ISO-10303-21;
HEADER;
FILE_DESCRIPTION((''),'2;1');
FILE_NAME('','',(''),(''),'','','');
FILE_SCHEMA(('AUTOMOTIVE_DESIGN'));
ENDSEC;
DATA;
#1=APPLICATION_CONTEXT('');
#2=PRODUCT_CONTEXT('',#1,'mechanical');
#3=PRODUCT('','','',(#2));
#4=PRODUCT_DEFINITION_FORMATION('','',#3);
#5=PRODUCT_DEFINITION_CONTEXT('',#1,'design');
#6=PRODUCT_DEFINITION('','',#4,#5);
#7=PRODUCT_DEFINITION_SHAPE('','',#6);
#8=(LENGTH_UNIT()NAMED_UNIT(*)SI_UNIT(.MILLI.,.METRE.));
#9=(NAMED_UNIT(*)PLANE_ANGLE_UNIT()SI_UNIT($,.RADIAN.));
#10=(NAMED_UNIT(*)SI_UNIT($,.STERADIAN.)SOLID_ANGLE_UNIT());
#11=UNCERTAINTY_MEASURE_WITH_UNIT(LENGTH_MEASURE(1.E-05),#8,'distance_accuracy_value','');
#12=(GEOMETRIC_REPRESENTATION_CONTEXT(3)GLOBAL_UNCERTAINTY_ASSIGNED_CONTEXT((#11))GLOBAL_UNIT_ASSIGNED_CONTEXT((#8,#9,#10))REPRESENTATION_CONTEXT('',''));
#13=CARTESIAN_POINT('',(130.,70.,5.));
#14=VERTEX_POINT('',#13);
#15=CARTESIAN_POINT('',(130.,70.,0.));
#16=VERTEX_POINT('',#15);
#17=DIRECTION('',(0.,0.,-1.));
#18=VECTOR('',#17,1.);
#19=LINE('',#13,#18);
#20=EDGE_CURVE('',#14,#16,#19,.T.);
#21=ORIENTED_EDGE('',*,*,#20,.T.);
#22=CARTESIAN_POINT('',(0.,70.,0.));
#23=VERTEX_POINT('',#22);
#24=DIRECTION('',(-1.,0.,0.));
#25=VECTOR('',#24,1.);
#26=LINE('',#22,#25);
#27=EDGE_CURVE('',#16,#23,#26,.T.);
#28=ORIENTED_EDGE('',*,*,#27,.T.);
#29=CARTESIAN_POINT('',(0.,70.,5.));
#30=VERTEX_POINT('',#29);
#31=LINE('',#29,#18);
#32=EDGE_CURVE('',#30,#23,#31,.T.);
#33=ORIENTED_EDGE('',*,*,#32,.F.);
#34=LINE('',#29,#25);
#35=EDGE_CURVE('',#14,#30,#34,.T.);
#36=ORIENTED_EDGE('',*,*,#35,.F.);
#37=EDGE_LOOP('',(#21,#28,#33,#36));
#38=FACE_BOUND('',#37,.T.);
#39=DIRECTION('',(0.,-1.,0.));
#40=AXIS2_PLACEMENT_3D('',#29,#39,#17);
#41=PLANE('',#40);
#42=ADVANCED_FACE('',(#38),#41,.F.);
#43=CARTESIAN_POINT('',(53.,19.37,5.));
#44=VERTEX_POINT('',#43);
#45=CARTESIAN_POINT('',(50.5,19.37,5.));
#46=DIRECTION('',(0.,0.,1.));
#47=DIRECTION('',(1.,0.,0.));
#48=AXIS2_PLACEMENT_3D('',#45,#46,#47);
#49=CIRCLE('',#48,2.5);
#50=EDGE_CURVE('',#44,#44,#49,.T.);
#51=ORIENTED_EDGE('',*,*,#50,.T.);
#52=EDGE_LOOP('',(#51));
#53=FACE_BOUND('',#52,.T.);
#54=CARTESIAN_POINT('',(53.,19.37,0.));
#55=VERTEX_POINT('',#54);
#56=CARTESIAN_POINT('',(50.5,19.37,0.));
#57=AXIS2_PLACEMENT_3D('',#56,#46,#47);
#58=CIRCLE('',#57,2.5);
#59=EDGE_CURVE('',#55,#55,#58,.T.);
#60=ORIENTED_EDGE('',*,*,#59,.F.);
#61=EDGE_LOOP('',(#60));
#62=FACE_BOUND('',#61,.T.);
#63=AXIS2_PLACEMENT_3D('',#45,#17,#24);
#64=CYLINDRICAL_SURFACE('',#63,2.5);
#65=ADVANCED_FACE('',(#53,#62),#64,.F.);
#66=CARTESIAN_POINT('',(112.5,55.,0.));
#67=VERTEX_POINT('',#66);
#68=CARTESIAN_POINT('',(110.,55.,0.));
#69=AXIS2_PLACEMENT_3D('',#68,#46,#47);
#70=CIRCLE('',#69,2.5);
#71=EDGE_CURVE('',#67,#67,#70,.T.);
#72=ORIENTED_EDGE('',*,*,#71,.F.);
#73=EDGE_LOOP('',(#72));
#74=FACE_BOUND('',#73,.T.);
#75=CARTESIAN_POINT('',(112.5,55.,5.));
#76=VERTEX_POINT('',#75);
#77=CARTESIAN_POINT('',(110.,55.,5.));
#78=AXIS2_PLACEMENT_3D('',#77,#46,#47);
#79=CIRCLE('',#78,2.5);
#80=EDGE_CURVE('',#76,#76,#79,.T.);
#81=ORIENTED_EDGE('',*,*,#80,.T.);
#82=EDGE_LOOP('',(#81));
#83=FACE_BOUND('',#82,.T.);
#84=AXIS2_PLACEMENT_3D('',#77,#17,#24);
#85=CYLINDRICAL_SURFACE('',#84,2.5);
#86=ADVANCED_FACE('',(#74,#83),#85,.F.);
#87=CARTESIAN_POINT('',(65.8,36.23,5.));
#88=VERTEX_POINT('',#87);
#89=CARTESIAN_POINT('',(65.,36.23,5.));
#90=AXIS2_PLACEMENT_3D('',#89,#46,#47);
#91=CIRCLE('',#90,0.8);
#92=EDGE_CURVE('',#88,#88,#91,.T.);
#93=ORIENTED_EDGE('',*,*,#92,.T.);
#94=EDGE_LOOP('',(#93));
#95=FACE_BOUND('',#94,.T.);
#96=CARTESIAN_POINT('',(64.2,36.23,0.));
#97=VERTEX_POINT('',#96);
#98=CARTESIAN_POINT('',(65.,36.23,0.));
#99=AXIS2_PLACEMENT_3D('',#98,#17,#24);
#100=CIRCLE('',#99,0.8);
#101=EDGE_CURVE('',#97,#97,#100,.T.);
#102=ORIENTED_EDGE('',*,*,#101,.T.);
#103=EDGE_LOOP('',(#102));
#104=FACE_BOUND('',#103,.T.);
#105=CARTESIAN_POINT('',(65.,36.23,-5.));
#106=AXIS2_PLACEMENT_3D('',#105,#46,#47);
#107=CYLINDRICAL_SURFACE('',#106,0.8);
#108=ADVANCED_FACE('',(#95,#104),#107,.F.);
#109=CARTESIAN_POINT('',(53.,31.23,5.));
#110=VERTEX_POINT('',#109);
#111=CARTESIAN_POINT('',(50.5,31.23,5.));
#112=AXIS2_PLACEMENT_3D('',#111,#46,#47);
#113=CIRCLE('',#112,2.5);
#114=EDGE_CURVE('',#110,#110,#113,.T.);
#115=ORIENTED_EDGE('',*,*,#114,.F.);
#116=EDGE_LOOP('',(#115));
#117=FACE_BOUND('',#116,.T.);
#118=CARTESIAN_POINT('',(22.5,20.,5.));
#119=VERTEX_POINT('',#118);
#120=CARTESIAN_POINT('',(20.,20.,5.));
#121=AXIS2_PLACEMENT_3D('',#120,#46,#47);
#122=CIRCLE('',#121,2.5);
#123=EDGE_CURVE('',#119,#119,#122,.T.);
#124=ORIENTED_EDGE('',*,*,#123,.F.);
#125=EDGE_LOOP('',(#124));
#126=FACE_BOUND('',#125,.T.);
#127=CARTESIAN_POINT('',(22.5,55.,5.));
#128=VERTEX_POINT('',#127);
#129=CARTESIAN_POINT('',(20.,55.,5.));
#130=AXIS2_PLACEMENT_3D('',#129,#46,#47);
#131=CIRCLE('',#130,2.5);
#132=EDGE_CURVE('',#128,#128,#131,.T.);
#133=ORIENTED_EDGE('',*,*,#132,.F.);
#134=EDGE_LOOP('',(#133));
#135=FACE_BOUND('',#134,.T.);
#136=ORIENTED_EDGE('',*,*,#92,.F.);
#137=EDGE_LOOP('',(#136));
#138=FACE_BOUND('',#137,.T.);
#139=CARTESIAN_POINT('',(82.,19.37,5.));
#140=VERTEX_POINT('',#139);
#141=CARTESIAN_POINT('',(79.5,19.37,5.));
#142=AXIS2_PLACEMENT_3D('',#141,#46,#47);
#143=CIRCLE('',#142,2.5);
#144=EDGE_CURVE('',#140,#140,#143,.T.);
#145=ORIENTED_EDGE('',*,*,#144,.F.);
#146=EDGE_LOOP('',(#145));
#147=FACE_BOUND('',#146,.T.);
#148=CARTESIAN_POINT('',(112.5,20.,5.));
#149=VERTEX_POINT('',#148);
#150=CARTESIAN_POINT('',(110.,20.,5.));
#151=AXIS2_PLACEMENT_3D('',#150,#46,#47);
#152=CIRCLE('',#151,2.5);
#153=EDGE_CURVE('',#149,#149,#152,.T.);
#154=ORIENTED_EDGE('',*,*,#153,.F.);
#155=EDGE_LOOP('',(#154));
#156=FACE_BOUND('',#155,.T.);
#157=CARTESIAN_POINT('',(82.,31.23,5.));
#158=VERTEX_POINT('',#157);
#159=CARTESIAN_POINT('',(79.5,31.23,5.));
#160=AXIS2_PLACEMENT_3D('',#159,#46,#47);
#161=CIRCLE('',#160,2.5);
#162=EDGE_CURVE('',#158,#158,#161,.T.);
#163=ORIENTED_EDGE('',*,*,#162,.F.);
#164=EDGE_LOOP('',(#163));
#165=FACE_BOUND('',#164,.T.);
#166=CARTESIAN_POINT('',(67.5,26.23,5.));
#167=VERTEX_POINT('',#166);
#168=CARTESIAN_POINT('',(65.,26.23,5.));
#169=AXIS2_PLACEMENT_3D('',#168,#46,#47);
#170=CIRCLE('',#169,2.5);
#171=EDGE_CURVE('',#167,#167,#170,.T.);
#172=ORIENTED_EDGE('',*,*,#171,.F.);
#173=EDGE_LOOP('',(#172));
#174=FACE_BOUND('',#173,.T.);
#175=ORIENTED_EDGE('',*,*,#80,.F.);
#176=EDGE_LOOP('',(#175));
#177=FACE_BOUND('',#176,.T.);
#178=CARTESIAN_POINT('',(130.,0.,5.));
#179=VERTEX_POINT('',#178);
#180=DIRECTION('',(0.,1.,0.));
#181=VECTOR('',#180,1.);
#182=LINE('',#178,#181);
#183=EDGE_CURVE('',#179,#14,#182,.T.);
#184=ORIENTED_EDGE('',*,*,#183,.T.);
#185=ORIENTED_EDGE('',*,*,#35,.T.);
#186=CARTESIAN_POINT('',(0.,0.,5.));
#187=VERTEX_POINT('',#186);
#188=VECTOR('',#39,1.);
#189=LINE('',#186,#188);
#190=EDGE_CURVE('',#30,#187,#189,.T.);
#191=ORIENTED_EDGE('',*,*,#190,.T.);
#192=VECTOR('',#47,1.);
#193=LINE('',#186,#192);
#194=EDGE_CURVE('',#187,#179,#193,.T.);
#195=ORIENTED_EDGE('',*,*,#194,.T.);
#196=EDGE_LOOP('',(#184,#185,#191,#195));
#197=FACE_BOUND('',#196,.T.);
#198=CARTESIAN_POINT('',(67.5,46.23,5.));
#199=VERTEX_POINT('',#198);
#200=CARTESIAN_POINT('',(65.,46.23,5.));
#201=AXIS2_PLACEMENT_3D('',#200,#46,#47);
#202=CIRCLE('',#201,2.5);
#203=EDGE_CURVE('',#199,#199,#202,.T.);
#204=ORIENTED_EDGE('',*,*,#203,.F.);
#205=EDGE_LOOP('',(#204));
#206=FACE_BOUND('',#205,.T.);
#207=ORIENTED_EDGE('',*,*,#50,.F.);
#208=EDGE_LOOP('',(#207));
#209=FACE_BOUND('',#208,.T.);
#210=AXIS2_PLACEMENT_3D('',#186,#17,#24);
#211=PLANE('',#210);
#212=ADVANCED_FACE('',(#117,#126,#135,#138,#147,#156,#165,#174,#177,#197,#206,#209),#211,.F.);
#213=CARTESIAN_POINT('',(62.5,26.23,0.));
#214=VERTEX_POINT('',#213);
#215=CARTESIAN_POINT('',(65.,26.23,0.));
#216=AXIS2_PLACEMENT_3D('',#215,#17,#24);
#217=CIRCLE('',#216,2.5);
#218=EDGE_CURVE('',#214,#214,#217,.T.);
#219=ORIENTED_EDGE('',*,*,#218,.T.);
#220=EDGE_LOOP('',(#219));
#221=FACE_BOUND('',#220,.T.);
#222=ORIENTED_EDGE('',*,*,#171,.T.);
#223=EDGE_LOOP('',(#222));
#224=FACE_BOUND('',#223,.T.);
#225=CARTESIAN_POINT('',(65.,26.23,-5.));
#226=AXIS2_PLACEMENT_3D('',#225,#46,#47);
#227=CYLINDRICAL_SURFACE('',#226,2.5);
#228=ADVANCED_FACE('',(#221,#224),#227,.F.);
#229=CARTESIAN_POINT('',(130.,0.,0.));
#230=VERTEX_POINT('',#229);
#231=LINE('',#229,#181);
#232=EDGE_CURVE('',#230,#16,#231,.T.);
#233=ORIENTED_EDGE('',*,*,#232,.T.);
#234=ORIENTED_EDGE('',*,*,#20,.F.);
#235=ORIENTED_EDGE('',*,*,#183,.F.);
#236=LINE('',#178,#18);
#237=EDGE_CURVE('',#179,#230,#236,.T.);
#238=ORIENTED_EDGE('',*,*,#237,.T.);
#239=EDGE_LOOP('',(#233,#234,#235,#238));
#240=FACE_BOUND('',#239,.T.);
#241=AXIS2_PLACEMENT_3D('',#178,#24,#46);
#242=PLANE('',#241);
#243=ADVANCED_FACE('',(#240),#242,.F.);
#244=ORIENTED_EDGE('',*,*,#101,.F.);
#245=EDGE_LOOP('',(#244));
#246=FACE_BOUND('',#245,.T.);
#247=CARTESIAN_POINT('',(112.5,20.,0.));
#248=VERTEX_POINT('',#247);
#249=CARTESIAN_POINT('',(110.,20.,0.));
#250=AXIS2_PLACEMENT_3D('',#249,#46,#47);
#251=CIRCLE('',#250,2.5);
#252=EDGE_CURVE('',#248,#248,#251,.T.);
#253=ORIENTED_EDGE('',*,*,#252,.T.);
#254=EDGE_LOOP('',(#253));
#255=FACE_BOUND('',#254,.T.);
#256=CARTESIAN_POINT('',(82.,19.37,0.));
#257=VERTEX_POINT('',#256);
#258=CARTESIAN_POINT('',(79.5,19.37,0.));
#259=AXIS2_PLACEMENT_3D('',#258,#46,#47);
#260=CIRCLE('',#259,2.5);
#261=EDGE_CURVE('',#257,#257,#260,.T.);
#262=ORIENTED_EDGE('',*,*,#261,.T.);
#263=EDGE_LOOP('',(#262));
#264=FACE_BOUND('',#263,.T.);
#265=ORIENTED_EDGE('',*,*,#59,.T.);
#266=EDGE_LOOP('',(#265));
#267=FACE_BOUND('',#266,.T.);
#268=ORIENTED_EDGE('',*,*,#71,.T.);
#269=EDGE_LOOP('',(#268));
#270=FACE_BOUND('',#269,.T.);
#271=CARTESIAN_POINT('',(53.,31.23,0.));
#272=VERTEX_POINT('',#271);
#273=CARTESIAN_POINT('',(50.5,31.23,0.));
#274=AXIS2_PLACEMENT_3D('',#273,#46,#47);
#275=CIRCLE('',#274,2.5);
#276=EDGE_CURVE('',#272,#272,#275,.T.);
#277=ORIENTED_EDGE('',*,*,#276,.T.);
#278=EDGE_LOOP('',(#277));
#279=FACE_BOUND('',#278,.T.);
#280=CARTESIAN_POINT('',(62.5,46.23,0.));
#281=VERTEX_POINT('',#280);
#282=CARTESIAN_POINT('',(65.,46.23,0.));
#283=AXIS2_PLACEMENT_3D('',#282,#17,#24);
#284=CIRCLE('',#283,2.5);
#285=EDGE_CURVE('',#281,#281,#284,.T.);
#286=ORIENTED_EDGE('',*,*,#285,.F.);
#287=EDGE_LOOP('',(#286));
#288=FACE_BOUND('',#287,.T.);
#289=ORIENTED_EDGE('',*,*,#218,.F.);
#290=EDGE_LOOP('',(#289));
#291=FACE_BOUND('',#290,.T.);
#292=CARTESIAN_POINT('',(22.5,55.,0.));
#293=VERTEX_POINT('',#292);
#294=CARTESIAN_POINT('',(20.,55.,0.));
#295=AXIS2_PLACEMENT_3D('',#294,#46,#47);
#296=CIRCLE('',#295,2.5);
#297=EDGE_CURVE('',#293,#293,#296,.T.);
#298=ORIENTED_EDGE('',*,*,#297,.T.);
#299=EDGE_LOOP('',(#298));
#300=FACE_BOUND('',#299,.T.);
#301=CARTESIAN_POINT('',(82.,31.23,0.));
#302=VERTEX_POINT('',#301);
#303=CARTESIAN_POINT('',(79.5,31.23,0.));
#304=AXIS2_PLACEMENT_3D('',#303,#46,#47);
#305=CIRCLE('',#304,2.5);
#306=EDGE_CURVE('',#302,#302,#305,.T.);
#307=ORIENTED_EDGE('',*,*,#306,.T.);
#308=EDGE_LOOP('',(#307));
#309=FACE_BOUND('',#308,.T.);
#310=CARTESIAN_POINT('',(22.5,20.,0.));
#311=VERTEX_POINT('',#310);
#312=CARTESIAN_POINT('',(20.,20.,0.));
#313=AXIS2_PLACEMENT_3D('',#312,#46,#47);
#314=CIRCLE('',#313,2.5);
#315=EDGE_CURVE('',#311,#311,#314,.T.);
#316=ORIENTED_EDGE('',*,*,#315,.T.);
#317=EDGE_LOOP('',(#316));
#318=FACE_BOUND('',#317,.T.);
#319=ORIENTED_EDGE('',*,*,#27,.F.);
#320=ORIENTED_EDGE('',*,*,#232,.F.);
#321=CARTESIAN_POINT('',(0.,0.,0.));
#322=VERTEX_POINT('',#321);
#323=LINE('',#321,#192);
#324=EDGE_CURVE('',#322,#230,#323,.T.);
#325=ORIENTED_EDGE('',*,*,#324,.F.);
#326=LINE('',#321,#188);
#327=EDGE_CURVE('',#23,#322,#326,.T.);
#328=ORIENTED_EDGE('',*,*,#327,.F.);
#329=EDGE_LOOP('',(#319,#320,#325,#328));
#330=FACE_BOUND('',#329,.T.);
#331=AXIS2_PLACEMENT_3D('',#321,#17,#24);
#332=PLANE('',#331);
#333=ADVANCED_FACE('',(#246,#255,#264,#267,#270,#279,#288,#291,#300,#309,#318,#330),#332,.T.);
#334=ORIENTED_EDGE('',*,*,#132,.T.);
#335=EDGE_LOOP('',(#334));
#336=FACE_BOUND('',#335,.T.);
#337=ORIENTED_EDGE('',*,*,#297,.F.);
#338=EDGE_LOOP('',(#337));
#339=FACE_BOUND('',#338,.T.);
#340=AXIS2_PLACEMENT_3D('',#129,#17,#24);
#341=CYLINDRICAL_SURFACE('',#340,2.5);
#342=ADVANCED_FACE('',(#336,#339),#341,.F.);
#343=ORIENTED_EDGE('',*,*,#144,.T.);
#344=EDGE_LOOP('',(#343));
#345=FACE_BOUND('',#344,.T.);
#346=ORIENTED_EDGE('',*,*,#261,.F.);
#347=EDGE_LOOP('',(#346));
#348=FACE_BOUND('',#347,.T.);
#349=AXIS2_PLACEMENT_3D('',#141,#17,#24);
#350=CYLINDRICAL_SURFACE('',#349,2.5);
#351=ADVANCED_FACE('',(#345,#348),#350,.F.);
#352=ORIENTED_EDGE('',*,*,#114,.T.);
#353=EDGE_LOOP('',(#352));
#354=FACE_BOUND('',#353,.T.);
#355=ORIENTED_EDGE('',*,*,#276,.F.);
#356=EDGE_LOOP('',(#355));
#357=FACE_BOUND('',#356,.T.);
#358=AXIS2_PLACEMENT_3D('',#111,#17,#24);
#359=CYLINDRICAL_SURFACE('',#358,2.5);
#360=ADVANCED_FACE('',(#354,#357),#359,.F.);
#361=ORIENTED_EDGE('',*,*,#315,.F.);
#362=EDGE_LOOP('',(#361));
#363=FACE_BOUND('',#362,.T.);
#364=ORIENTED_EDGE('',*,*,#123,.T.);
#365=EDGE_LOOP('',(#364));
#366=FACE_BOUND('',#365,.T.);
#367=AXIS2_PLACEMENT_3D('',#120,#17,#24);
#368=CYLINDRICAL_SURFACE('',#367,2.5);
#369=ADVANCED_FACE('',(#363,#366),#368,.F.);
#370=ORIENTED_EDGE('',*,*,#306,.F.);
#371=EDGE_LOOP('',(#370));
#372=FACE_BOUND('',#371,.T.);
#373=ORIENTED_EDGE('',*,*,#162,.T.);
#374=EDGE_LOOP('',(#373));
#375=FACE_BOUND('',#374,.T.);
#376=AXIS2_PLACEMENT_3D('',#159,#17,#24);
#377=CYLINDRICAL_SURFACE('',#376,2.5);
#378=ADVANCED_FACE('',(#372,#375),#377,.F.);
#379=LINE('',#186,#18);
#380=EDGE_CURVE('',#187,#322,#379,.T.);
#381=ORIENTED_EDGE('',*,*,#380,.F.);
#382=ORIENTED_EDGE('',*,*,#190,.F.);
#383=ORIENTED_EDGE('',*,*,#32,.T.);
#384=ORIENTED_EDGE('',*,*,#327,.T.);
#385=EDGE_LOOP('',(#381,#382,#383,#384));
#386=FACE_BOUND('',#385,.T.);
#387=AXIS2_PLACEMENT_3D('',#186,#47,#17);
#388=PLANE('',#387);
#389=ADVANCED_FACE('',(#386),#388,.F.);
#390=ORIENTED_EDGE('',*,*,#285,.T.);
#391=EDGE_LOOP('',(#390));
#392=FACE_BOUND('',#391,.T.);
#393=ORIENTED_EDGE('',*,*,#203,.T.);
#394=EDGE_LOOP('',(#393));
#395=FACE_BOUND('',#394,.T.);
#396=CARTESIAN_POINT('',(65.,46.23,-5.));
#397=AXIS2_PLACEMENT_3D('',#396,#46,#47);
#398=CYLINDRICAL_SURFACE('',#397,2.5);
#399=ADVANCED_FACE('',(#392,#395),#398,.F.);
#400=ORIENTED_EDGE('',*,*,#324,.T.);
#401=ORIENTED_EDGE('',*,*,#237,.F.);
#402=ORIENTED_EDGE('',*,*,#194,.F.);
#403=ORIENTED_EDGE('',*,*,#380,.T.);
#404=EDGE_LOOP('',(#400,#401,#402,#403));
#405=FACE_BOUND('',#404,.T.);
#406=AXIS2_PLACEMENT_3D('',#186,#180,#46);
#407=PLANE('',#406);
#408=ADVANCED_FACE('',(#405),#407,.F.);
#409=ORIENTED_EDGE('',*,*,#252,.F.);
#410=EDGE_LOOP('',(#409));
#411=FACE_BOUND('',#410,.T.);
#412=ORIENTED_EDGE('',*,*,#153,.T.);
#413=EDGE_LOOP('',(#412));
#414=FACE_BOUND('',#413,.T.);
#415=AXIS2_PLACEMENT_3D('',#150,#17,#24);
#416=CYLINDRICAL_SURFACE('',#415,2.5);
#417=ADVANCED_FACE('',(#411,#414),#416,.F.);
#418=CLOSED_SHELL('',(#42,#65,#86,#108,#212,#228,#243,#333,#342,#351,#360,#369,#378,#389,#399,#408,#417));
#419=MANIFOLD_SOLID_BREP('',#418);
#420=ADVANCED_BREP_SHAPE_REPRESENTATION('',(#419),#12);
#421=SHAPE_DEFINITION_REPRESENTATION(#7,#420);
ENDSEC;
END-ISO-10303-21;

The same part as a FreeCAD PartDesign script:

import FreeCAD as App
import Part
import Sketcher


def add_polygon(sketch, points):
    """Adds a closed chain of lines whose ends are joined by coincident constraints."""
    first, n = sketch.GeometryCount, len(points)
    for a, b in zip(points, points[1:] + points[:1]):
        sketch.addGeometry(Part.LineSegment(App.Vector(*a, 0), App.Vector(*b, 0)), False)
    for i in range(n):
        sketch.addConstraint(Sketcher.Constraint("Coincident", first + i, 2, first + (i + 1) % n, 1))

doc = App.newDocument("Part")
body = doc.addObject("PartDesign::Body", "Body")

# Sketch on XY plane
sketch1 = body.newObject("Sketcher::SketchObject", "Sketch")
sketch1.AttachmentSupport = (doc.getObject("XY_Plane"), [""])
sketch1.MapMode = "FlatFace"
add_polygon(sketch1, [(0, 70), (0, 0), (130, 0), (130, 70)])  # lines 0-3
sketch1.addGeometry(Part.Circle(App.Vector(20, 20, 0), App.Vector(0, 0, 1), 2.5), False)  # 4
sketch1.addGeometry(Part.Circle(App.Vector(50.5, 19.4, 0), App.Vector(0, 0, 1), 2.5), False)  # 5
sketch1.addGeometry(Part.Circle(App.Vector(50.5, 31.2, 0), App.Vector(0, 0, 1), 2.5), False)  # 6
sketch1.addGeometry(Part.Circle(App.Vector(79.5, 19.4, 0), App.Vector(0, 0, 1), 2.5), False)  # 7
sketch1.addGeometry(Part.Circle(App.Vector(110, 20, 0), App.Vector(0, 0, 1), 2.5), False)  # 8
sketch1.addGeometry(Part.Circle(App.Vector(79.5, 31.2, 0), App.Vector(0, 0, 1), 2.5), False)  # 9
sketch1.addGeometry(Part.Circle(App.Vector(20, 55, 0), App.Vector(0, 0, 1), 2.5), False)  # 10
sketch1.addGeometry(Part.Circle(App.Vector(110, 55, 0), App.Vector(0, 0, 1), 2.5), False)  # 11
sketch1.addConstraint([
    Sketcher.Constraint("Vertical", 0),
    Sketcher.Constraint("Horizontal", 1),
    Sketcher.Constraint("Vertical", 2),
    Sketcher.Constraint("Horizontal", 3),
    Sketcher.Constraint("Coincident", 0, 2, -1, 1),
    Sketcher.Constraint("Equal", 4, 5),
    Sketcher.Constraint("Equal", 5, 6),
    Sketcher.Constraint("Equal", 6, 7),
    Sketcher.Constraint("Equal", 7, 8),
    Sketcher.Constraint("Equal", 8, 9),
    Sketcher.Constraint("Equal", 9, 10),
    Sketcher.Constraint("Equal", 10, 11),
    Sketcher.Constraint("Horizontal", 5, 3, 7, 3),
    Sketcher.Constraint("Horizontal", 4, 3, 8, 3),
    Sketcher.Constraint("Horizontal", 6, 3, 9, 3),
    Sketcher.Constraint("Horizontal", 10, 3, 11, 3),
    Sketcher.Constraint("Vertical", 5, 3, 6, 3),
    Sketcher.Constraint("Vertical", 7, 3, 9, 3),
    Sketcher.Constraint("Vertical", 4, 3, 10, 3),
    Sketcher.Constraint("Vertical", 8, 3, 11, 3),
    Sketcher.Constraint("Diameter", 4, 5.0),
    Sketcher.Constraint("DistanceX", 1, 1, 1, 2, 130.0),
    Sketcher.Constraint("DistanceY", 0, 2, 0, 1, 70.0),
    Sketcher.Constraint("DistanceX", -1, 1, 4, 3, 20.0),
    Sketcher.Constraint("DistanceY", -1, 1, 4, 3, 20.0),
    Sketcher.Constraint("DistanceX", -1, 1, 8, 3, 110.0),
    Sketcher.Constraint("DistanceY", -1, 1, 10, 3, 55.0),
    Sketcher.Constraint("DistanceX", 5, 3, 7, 3, 29.0),
    Sketcher.Constraint("DistanceX", -1, 1, 5, 3, 50.5),
    Sketcher.Constraint("DistanceY", -1, 1, 5, 3, 19.37),
    Sketcher.Constraint("DistanceY", -1, 1, 6, 3, 31.23),
])
pad1 = body.newObject("PartDesign::Pad", "Pad")
pad1.Profile = sketch1
pad1.Length = 5

# Sketch on XY plane
sketch2 = body.newObject("Sketcher::SketchObject", "Sketch001")
sketch2.AttachmentSupport = (doc.getObject("XY_Plane"), [""])
sketch2.MapMode = "FlatFace"
sketch2.AttachmentOffset = App.Placement(App.Vector(0, 0, 5), App.Rotation())
sketch2.addGeometry([
    Part.Circle(App.Vector(65, 36.2, 0), App.Vector(0, 0, 1), 0.8),
    Part.Circle(App.Vector(65, 26.2, 0), App.Vector(0, 0, 1), 2.5),
    Part.Circle(App.Vector(65, 46.2, 0), App.Vector(0, 0, 1), 2.5),
], False)
sketch2.addConstraint([
    Sketcher.Constraint("Equal", 1, 2),
    Sketcher.Constraint("Vertical", 0, 3, 1, 3),
    Sketcher.Constraint("Vertical", 1, 3, 2, 3),
    Sketcher.Constraint("Diameter", 1, 5.0),
    Sketcher.Constraint("Diameter", 0, 1.6),
    Sketcher.Constraint("DistanceX", -1, 1, 0, 3, 65.0),
    Sketcher.Constraint("DistanceY", 1, 3, 0, 3, 10.0),
    Sketcher.Constraint("DistanceY", 0, 3, 2, 3, 10.0),
    Sketcher.Constraint("DistanceY", -1, 1, 0, 3, 36.23),
])
pocket1 = body.newObject("PartDesign::Pocket", "Pocket")
pocket1.Profile = sketch2
pocket1.Length = 10

doc.recompute()
